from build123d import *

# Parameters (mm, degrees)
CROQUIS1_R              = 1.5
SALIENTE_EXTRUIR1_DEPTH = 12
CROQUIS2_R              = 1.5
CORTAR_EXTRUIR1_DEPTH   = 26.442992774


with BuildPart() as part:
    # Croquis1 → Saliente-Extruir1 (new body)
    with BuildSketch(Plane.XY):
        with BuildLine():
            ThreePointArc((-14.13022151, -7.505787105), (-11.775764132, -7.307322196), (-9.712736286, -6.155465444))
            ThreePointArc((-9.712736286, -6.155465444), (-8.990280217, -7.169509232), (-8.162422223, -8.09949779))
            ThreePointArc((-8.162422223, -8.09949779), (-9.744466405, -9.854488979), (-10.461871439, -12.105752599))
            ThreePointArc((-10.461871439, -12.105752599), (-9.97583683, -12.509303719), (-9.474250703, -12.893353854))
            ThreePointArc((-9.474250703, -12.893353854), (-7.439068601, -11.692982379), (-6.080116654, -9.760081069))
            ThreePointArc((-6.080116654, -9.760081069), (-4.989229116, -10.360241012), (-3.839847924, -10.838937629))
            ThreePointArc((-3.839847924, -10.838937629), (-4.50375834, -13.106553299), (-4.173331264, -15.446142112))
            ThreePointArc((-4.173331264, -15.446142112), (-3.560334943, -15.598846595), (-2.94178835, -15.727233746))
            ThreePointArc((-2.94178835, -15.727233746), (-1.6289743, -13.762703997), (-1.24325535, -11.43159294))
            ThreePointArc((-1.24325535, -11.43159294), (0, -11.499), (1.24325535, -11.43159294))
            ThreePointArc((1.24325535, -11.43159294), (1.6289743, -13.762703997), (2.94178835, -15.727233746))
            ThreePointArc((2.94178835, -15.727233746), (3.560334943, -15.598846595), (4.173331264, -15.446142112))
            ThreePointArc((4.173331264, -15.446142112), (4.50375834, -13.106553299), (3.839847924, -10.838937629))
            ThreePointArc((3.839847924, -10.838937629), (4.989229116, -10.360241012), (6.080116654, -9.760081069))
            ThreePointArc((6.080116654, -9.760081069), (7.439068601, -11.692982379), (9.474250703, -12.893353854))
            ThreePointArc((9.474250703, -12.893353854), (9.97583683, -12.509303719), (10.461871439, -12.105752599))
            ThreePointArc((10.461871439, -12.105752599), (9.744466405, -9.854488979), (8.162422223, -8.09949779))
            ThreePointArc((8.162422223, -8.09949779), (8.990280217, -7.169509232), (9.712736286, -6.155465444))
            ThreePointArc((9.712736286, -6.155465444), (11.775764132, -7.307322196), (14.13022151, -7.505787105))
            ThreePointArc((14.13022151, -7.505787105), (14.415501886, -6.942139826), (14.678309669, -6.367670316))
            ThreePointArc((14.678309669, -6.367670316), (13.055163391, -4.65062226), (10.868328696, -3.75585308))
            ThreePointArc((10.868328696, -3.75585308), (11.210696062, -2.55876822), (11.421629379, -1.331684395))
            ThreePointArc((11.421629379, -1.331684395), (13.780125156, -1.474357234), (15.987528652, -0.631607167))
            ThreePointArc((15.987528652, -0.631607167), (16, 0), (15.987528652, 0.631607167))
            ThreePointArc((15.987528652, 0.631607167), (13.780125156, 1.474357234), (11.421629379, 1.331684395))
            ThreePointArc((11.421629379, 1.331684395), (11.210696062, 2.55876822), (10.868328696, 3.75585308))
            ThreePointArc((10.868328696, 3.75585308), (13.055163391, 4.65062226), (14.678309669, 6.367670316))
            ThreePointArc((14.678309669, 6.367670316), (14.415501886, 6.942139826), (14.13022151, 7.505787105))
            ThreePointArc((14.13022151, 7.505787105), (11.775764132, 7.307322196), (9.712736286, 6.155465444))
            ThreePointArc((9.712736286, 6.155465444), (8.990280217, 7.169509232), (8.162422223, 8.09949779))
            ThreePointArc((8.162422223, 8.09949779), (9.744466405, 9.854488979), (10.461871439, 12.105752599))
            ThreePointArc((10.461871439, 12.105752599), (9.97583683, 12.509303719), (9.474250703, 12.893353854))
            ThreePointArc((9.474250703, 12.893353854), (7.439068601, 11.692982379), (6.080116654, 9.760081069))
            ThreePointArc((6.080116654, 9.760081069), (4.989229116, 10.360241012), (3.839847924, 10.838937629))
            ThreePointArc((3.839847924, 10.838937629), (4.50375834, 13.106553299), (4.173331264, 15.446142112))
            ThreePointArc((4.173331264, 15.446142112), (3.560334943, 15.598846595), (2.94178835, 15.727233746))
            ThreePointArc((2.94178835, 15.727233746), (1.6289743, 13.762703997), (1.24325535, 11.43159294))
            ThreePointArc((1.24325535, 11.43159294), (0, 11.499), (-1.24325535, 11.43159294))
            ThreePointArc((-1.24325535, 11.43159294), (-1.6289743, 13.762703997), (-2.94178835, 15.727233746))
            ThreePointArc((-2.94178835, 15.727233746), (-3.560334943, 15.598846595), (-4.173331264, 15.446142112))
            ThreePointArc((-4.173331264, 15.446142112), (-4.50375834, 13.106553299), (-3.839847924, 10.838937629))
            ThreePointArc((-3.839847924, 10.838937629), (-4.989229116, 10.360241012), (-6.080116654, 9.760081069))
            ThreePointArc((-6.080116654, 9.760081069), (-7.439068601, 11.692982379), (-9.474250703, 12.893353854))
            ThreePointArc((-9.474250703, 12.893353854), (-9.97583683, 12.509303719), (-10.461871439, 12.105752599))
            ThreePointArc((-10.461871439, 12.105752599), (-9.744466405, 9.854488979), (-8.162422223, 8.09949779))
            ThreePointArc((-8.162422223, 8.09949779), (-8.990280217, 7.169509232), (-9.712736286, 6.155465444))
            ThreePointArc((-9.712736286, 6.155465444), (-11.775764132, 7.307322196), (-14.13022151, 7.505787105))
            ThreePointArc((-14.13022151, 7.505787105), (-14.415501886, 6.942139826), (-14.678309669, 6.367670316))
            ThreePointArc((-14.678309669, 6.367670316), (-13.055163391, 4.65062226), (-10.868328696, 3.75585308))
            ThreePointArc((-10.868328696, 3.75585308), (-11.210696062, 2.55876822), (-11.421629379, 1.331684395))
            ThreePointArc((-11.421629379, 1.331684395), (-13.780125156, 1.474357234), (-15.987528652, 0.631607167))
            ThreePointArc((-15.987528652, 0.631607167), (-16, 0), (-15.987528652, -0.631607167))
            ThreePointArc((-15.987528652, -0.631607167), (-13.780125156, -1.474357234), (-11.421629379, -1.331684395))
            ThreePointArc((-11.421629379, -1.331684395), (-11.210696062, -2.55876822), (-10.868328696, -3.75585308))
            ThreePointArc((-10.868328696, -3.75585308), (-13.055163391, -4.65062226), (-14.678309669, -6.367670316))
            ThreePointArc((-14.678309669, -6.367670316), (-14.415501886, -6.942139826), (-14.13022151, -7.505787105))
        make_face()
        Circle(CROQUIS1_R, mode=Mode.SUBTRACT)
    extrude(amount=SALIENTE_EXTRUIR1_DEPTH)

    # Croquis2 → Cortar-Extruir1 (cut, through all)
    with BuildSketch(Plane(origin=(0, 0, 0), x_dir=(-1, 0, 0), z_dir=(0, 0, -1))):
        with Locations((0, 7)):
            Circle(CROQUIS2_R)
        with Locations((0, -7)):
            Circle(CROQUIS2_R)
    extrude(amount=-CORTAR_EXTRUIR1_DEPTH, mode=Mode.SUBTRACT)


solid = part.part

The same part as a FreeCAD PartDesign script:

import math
import FreeCAD as App
import Part
import Sketcher

V = App.Vector

doc = App.newDocument("Part")
body = doc.addObject("PartDesign::Body", "Body")

sketch1 = doc.addObject("Sketcher::SketchObject", "Sketch")
body.addObject(sketch1)
sketch1.AttachmentSupport = (doc.XY_Plane, [""])
sketch1.MapMode = "FlatFace"
sketch1.addGeometry([
    Part.ArcOfCircle(Part.Circle(V(-13.4, -2, 0), V(0, 0, 1), 5.6), math.radians(-97), math.radians(-49)),
    Part.ArcOfCircle(Part.Circle(V(0, 0, 0), V(0, 0, 1), 11.5), math.radians(-147.64), math.radians(-135.22)),
    Part.ArcOfCircle(Part.Circle(V(-4.9, -12.6, 0), V(0, 0, 1), 5.6), math.radians(126), math.radians(175)),
    Part.ArcOfCircle(Part.Circle(V(0, 0, 0), V(0, 0, 1), 16), math.radians(-130.83), math.radians(-126.31)),
    Part.ArcOfCircle(Part.Circle(V(-11.2, -7.6, 0), V(0, 0, 1), 5.6), math.radians(-72), math.radians(-23)),
    Part.ArcOfCircle(Part.Circle(V(0, 0, 0), V(0, 0, 1), 11.5), math.radians(-121.92), math.radians(-109.51)),
    Part.ArcOfCircle(Part.Circle(V(1.1, -13.5, 0), V(0, 0, 1), 5.6), math.radians(152), math.radians(200)),
    Part.ArcOfCircle(Part.Circle(V(0, 0, 0), V(0, 0, 1), 16), math.radians(-105.12), math.radians(-100.59)),
    Part.ArcOfCircle(Part.Circle(V(-6.8, -11.7, 0), V(0, 0, 1), 5.6), math.radians(-46), math.radians(3)),
    Part.ArcOfCircle(Part.Circle(V(0, 0, 0), V(0, 0, 1), 11.5), math.radians(-96.21), math.radians(-83.79)),
    Part.ArcOfCircle(Part.Circle(V(6.8, -11.7, 0), V(0, 0, 1), 5.6), math.radians(177), math.radians(226)),
    Part.ArcOfCircle(Part.Circle(V(0, 0, 0), V(0, 0, 1), 16), math.radians(-79.41), math.radians(-74.88)),
    Part.ArcOfCircle(Part.Circle(V(-1.1, -13.5, 0), V(0, 0, 1), 5.6), math.radians(-20), math.radians(28)),
    Part.ArcOfCircle(Part.Circle(V(0, 0, 0), V(0, 0, 1), 11.5), math.radians(-70.49), math.radians(-58.08)),
    Part.ArcOfCircle(Part.Circle(V(11.2, -7.6, 0), V(0, 0, 1), 5.6), math.radians(-157), math.radians(-108)),
    Part.ArcOfCircle(Part.Circle(V(0, 0, 0), V(0, 0, 1), 16), math.radians(-53.69), math.radians(-49.17)),
    Part.ArcOfCircle(Part.Circle(V(4.9, -12.6, 0), V(0, 0, 1), 5.6), math.radians(5), math.radians(54)),
    Part.ArcOfCircle(Part.Circle(V(0, 0, 0), V(0, 0, 1), 11.5), math.radians(-44.78), math.radians(-32.36)),
    Part.ArcOfCircle(Part.Circle(V(13.4, -2, 0), V(0, 0, 1), 5.6), math.radians(-131), math.radians(-83)),
    Part.ArcOfCircle(Part.Circle(V(0, 0, 0), V(0, 0, 1), 16), math.radians(-27.98), math.radians(-23.45)),
    Part.ArcOfCircle(Part.Circle(V(9.9, -9.3, 0), V(0, 0, 1), 5.6), math.radians(31), math.radians(80)),
    Part.ArcOfCircle(Part.Circle(V(0, 0, 0), V(0, 0, 1), 11.5), math.radians(-19.06), math.radians(-6.65)),
    Part.ArcOfCircle(Part.Circle(V(12.9, 4.1, 0), V(0, 0, 1), 5.6), math.radians(-106), math.radians(-57)),
    Part.ArcOfCircle(Part.Circle(V(0, 0, 0), V(0, 0, 1), 16), math.radians(-2.26), math.radians(2.26)),
    Part.ArcOfCircle(Part.Circle(V(12.9, -4.1, 0), V(0, 0, 1), 5.6), math.radians(57), math.radians(106)),
    Part.ArcOfCircle(Part.Circle(V(0, 0, 0), V(0, 0, 1), 11.5), math.radians(6.65), math.radians(19.06)),
    Part.ArcOfCircle(Part.Circle(V(9.9, 9.3, 0), V(0, 0, 1), 5.6), math.radians(-80), math.radians(-31)),
    Part.ArcOfCircle(Part.Circle(V(0, 0, 0), V(0, 0, 1), 16), math.radians(23.45), math.radians(27.98)),
    Part.ArcOfCircle(Part.Circle(V(13.4, 2, 0), V(0, 0, 1), 5.6), math.radians(83), math.radians(131)),
    Part.ArcOfCircle(Part.Circle(V(0, 0, 0), V(0, 0, 1), 11.5), math.radians(32.36), math.radians(44.78)),
    Part.ArcOfCircle(Part.Circle(V(4.9, 12.6, 0), V(0, 0, 1), 5.6), math.radians(-54), math.radians(-5)),
    Part.ArcOfCircle(Part.Circle(V(0, 0, 0), V(0, 0, 1), 16), math.radians(49.17), math.radians(53.69)),
    Part.ArcOfCircle(Part.Circle(V(11.2, 7.6, 0), V(0, 0, 1), 5.6), math.radians(108), math.radians(157)),
    Part.ArcOfCircle(Part.Circle(V(0, 0, 0), V(0, 0, 1), 11.5), math.radians(58.08), math.radians(70.49)),
    Part.ArcOfCircle(Part.Circle(V(-1.1, 13.5, 0), V(0, 0, 1), 5.6), math.radians(-28), math.radians(20)),
    Part.ArcOfCircle(Part.Circle(V(0, 0, 0), V(0, 0, 1), 16), math.radians(74.88), math.radians(79.41)),
    Part.ArcOfCircle(Part.Circle(V(6.8, 11.7, 0), V(0, 0, 1), 5.6), math.radians(134), math.radians(183)),
    Part.ArcOfCircle(Part.Circle(V(0, 0, 0), V(0, 0, 1), 11.5), math.radians(83.79), math.radians(96.21)),
    Part.ArcOfCircle(Part.Circle(V(-6.8, 11.7, 0), V(0, 0, 1), 5.6), math.radians(-3), math.radians(46)),
    Part.ArcOfCircle(Part.Circle(V(0, 0, 0), V(0, 0, 1), 16), math.radians(100.59), math.radians(105.12)),
    Part.ArcOfCircle(Part.Circle(V(1.1, 13.5, 0), V(0, 0, 1), 5.6), math.radians(160), math.radians(208)),
    Part.ArcOfCircle(Part.Circle(V(0, 0, 0), V(0, 0, 1), 11.5), math.radians(109.51), math.radians(121.92)),
    Part.ArcOfCircle(Part.Circle(V(-11.2, 7.6, 0), V(0, 0, 1), 5.6), math.radians(23), math.radians(72)),
    Part.ArcOfCircle(Part.Circle(V(0, 0, 0), V(0, 0, 1), 16), math.radians(126.31), math.radians(130.83)),
    Part.ArcOfCircle(Part.Circle(V(-4.9, 12.6, 0), V(0, 0, 1), 5.6), math.radians(-175), math.radians(-126)),
    Part.ArcOfCircle(Part.Circle(V(0, 0, 0), V(0, 0, 1), 11.5), math.radians(135.22), math.radians(147.64)),
    Part.ArcOfCircle(Part.Circle(V(-13.4, 2, 0), V(0, 0, 1), 5.6), math.radians(49), math.radians(97)),
    Part.ArcOfCircle(Part.Circle(V(0, 0, 0), V(0, 0, 1), 16), math.radians(152.02), math.radians(156.55)),
    Part.ArcOfCircle(Part.Circle(V(-9.9, 9.3, 0), V(0, 0, 1), 5.6), math.radians(-149), math.radians(-100)),
    Part.ArcOfCircle(Part.Circle(V(0, 0, 0), V(0, 0, 1), 11.5), math.radians(160.94), math.radians(173.35)),
    Part.ArcOfCircle(Part.Circle(V(-12.9, -4.1, 0), V(0, 0, 1), 5.6), math.radians(74), math.radians(123)),
    Part.ArcOfCircle(Part.Circle(V(0, 0, 0), V(0, 0, 1), 16), math.radians(177.74), math.radians(182.26)),
    Part.ArcOfCircle(Part.Circle(V(-12.9, 4.1, 0), V(0, 0, 1), 5.6), math.radians(-123), math.radians(-74)),
    Part.ArcOfCircle(Part.Circle(V(0, 0, 0), V(0, 0, 1), 11.5), math.radians(-173.35), math.radians(-160.94)),
    Part.ArcOfCircle(Part.Circle(V(-9.9, -9.3, 0), V(0, 0, 1), 5.6), math.radians(100), math.radians(149)),
    Part.ArcOfCircle(Part.Circle(V(0, 0, 0), V(0, 0, 1), 16), math.radians(-156.55), math.radians(-152.02)),
    Part.Circle(V(0, 0, 0), V(0, 0, 1), 1.5),
], False)
sketch1.addConstraint([
    Sketcher.Constraint("Coincident", 0, 2, 1, 1),
    Sketcher.Constraint("Coincident", 1, 2, 2, 1),
    Sketcher.Constraint("Coincident", 2, 2, 3, 1),
    Sketcher.Constraint("Coincident", 3, 2, 4, 1),
    Sketcher.Constraint("Coincident", 4, 2, 5, 1),
    Sketcher.Constraint("Coincident", 5, 2, 6, 1),
    Sketcher.Constraint("Coincident", 6, 2, 7, 1),
    Sketcher.Constraint("Coincident", 7, 2, 8, 1),
    Sketcher.Constraint("Coincident", 8, 2, 9, 1),
    Sketcher.Constraint("Coincident", 9, 2, 10, 1),
    Sketcher.Constraint("Coincident", 10, 2, 11, 1),
    Sketcher.Constraint("Coincident", 11, 2, 12, 1),
    Sketcher.Constraint("Coincident", 12, 2, 13, 1),
    Sketcher.Constraint("Coincident", 13, 2, 14, 1),
    Sketcher.Constraint("Coincident", 14, 2, 15, 1),
    Sketcher.Constraint("Coincident", 15, 2, 16, 1),
    Sketcher.Constraint("Coincident", 16, 2, 17, 1),
    Sketcher.Constraint("Coincident", 17, 2, 18, 1),
    Sketcher.Constraint("Coincident", 18, 2, 19, 1),
    Sketcher.Constraint("Coincident", 19, 2, 20, 1),
    Sketcher.Constraint("Coincident", 20, 2, 21, 1),
    Sketcher.Constraint("Coincident", 21, 2, 22, 1),
    Sketcher.Constraint("Coincident", 22, 2, 23, 1),
    Sketcher.Constraint("Coincident", 23, 2, 24, 1),
    Sketcher.Constraint("Coincident", 24, 2, 25, 1),
    Sketcher.Constraint("Coincident", 25, 2, 26, 1),
    Sketcher.Constraint("Coincident", 26, 2, 27, 1),
    Sketcher.Constraint("Coincident", 27, 2, 28, 1),
    Sketcher.Constraint("Coincident", 28, 2, 29, 1),
    Sketcher.Constraint("Coincident", 29, 2, 30, 1),
    Sketcher.Constraint("Coincident", 30, 2, 31, 1),
    Sketcher.Constraint("Coincident", 31, 2, 32, 1),
    Sketcher.Constraint("Coincident", 32, 2, 33, 1),
    Sketcher.Constraint("Coincident", 33, 2, 34, 1),
    Sketcher.Constraint("Coincident", 34, 2, 35, 1),
    Sketcher.Constraint("Coincident", 35, 2, 36, 1),
    Sketcher.Constraint("Coincident", 36, 2, 37, 1),
    Sketcher.Constraint("Coincident", 37, 2, 38, 1),
    Sketcher.Constraint("Coincident", 38, 2, 39, 1),
    Sketcher.Constraint("Coincident", 39, 2, 40, 1),
    Sketcher.Constraint("Coincident", 40, 2, 41, 1),
    Sketcher.Constraint("Coincident", 41, 2, 42, 1),
    Sketcher.Constraint("Coincident", 42, 2, 43, 1),
    Sketcher.Constraint("Coincident", 43, 2, 44, 1),
    Sketcher.Constraint("Coincident", 44, 2, 45, 1),
    Sketcher.Constraint("Coincident", 45, 2, 46, 1),
    Sketcher.Constraint("Coincident", 46, 2, 47, 1),
    Sketcher.Constraint("Coincident", 47, 2, 48, 1),
    Sketcher.Constraint("Coincident", 48, 2, 49, 1),
    Sketcher.Constraint("Coincident", 49, 2, 50, 1),
    Sketcher.Constraint("Coincident", 50, 2, 51, 1),
    Sketcher.Constraint("Coincident", 51, 2, 52, 1),
    Sketcher.Constraint("Coincident", 52, 2, 53, 1),
    Sketcher.Constraint("Coincident", 53, 2, 54, 1),
    Sketcher.Constraint("Coincident", 54, 2, 55, 1),
    Sketcher.Constraint("Coincident", 55, 2, 0, 1),
    Sketcher.Constraint("Coincident", 1, 3, -1, 1),
    Sketcher.Constraint("Coincident", 3, 3, -1, 1),
    Sketcher.Constraint("Coincident", 5, 3, -1, 1),
    Sketcher.Constraint("Coincident", 7, 3, -1, 1),
    Sketcher.Constraint("Coincident", 9, 3, -1, 1),
    Sketcher.Constraint("Coincident", 11, 3, -1, 1),
    Sketcher.Constraint("Coincident", 13, 3, -1, 1),
    Sketcher.Constraint("Coincident", 15, 3, -1, 1),
    Sketcher.Constraint("Coincident", 17, 3, -1, 1),
    Sketcher.Constraint("Coincident", 19, 3, -1, 1),
    Sketcher.Constraint("Coincident", 21, 3, -1, 1),
    Sketcher.Constraint("Coincident", 23, 3, -1, 1),
    Sketcher.Constraint("Coincident", 25, 3, -1, 1),
    Sketcher.Constraint("Coincident", 27, 3, -1, 1),
    Sketcher.Constraint("Coincident", 29, 3, -1, 1),
    Sketcher.Constraint("Coincident", 31, 3, -1, 1),
    Sketcher.Constraint("Coincident", 33, 3, -1, 1),
    Sketcher.Constraint("Coincident", 35, 3, -1, 1),
    Sketcher.Constraint("Coincident", 37, 3, -1, 1),
    Sketcher.Constraint("Coincident", 39, 3, -1, 1),
    Sketcher.Constraint("Coincident", 41, 3, -1, 1),
    Sketcher.Constraint("Coincident", 43, 3, -1, 1),
    Sketcher.Constraint("Coincident", 45, 3, -1, 1),
    Sketcher.Constraint("Coincident", 47, 3, -1, 1),
    Sketcher.Constraint("Coincident", 49, 3, -1, 1),
    Sketcher.Constraint("Coincident", 51, 3, -1, 1),
    Sketcher.Constraint("Coincident", 53, 3, -1, 1),
    Sketcher.Constraint("Coincident", 55, 3, -1, 1),
    Sketcher.Constraint("Coincident", 56, 3, -1, 1),
    Sketcher.Constraint("Equal", 0, 2),
    Sketcher.Constraint("Equal", 2, 4),
    Sketcher.Constraint("Equal", 1, 5),
    Sketcher.Constraint("Equal", 4, 6),
    Sketcher.Constraint("Equal", 3, 7),
    Sketcher.Constraint("Equal", 6, 8),
    Sketcher.Constraint("Equal", 5, 9),
    Sketcher.Constraint("Equal", 8, 10),
    Sketcher.Constraint("Equal", 7, 11),
    Sketcher.Constraint("Equal", 10, 12),
    Sketcher.Constraint("Equal", 9, 13),
    Sketcher.Constraint("Equal", 12, 14),
    Sketcher.Constraint("Equal", 11, 15),
    Sketcher.Constraint("Equal", 14, 16),
    Sketcher.Constraint("Equal", 13, 17),
    Sketcher.Constraint("Equal", 16, 18),
    Sketcher.Constraint("Equal", 15, 19),
    Sketcher.Constraint("Equal", 18, 20),
    Sketcher.Constraint("Equal", 17, 21),
    Sketcher.Constraint("Equal", 20, 22),
    Sketcher.Constraint("Equal", 19, 23),
    Sketcher.Constraint("Equal", 22, 24),
    Sketcher.Constraint("Equal", 21, 25),
    Sketcher.Constraint("Equal", 24, 26),
    Sketcher.Constraint("Equal", 23, 27),
    Sketcher.Constraint("Equal", 26, 28),
    Sketcher.Constraint("Equal", 25, 29),
    Sketcher.Constraint("Equal", 28, 30),
    Sketcher.Constraint("Equal", 27, 31),
    Sketcher.Constraint("Equal", 30, 32),
    Sketcher.Constraint("Equal", 29, 33),
    Sketcher.Constraint("Equal", 32, 34),
    Sketcher.Constraint("Equal", 31, 35),
    Sketcher.Constraint("Equal", 34, 36),
    Sketcher.Constraint("Equal", 33, 37),
    Sketcher.Constraint("Equal", 36, 38),
    Sketcher.Constraint("Equal", 35, 39),
    Sketcher.Constraint("Equal", 38, 40),
    Sketcher.Constraint("Equal", 37, 41),
    Sketcher.Constraint("Equal", 40, 42),
    Sketcher.Constraint("Equal", 39, 43),
    Sketcher.Constraint("Equal", 42, 44),
    Sketcher.Constraint("Equal", 41, 45),
    Sketcher.Constraint("Equal", 44, 46),
    Sketcher.Constraint("Equal", 43, 47),
    Sketcher.Constraint("Equal", 46, 48),
    Sketcher.Constraint("Equal", 45, 49),
    Sketcher.Constraint("Equal", 48, 50),
    Sketcher.Constraint("Equal", 47, 51),
    Sketcher.Constraint("Equal", 50, 52),
    Sketcher.Constraint("Equal", 49, 53),
    Sketcher.Constraint("Equal", 52, 54),
    Sketcher.Constraint("Equal", 51, 55),
    Sketcher.Constraint("Symmetric", 0, 3, 28, 3, -1, 1),
    Sketcher.Constraint("Symmetric", 2, 3, 30, 3, -1, 1),
    Sketcher.Constraint("Symmetric", 4, 3, 32, 3, -1, 1),
    Sketcher.Constraint("Symmetric", 6, 3, 34, 3, -1, 1),
    Sketcher.Constraint("Symmetric", 8, 3, 36, 3, -1, 1),
    Sketcher.Constraint("Symmetric", 10, 3, 38, 3, -1, 1),
    Sketcher.Constraint("Symmetric", 12, 3, 40, 3, -1, 1),
    Sketcher.Constraint("Symmetric", 14, 3, 42, 3, -1, 1),
    Sketcher.Constraint("Symmetric", 16, 3, 44, 3, -1, 1),
    Sketcher.Constraint("Symmetric", 18, 3, 46, 3, -1, 1),
    Sketcher.Constraint("Symmetric", 20, 3, 48, 3, -1, 1),
    Sketcher.Constraint("Symmetric", 22, 3, 50, 3, -1, 1),
    Sketcher.Constraint("Symmetric", 24, 3, 52, 3, -1, 1),
    Sketcher.Constraint("Symmetric", 26, 3, 54, 3, -1, 1),
    Sketcher.Constraint("Symmetric", 8, 3, 10, 3, -2),
    Sketcher.Constraint("Symmetric", 6, 3, 12, 3, -2),
    Sketcher.Constraint("Symmetric", 4, 3, 14, 3, -2),
    Sketcher.Constraint("Symmetric", 2, 3, 16, 3, -2),
    Sketcher.Constraint("Symmetric", 0, 3, 18, 3, -2),
    Sketcher.Constraint("Symmetric", 26, 3, 48, 3, -2),
    Sketcher.Constraint("Symmetric", 24, 3, 50, 3, -2),
    Sketcher.Constraint("Diameter", 56, 3.0),
    Sketcher.Constraint("Radius", 3, 16.0),
    Sketcher.Constraint("Radius", 0, 5.6),
    Sketcher.Constraint("Radius", 1, 11.499),
    Sketcher.Constraint("DistanceX", 0, 3, -1, 1, 13.412781),
    Sketcher.Constraint("DistanceX", 2, 3, -1, 1, 4.88762),
    Sketcher.Constraint("DistanceY", 4, 3, -1, 1, 7.57822),
    Sketcher.Constraint("DistanceX", -1, 1, 6, 3, 1.081629),
    Sketcher.Constraint("DistanceY", 6, 3, -1, 1, 13.51084),
    Sketcher.Constraint("DistanceX", 8, 3, -1, 1, 6.836648),
    Sketcher.Constraint("DistanceX", -1, 1, 22, 3, 12.93141),
    Sketcher.Constraint("DistanceX", 2, 2, -1, 1, 10.461871),
    Sketcher.Constraint("DistanceX", 3, 2, -1, 1, 9.474251),
    Sketcher.Constraint("DistanceX", 7, 2, -1, 1, 2.941788),
    Sketcher.Constraint("DistanceX", -1, 1, 18, 2, 14.130222),
    Sketcher.Constraint("DistanceX", -1, 1, 19, 2, 14.67831),
    Sketcher.Constraint("DistanceX", -1, 1, 20, 2, 10.868329),
    Sketcher.Constraint("DistanceX", -1, 1, 21, 2, 11.421629),
])
pad1 = doc.addObject("PartDesign::Pad", "Pad")
body.addObject(pad1)
pad1.Profile = sketch1
pad1.Length = 12

sketch2 = doc.addObject("Sketcher::SketchObject", "Sketch001")
body.addObject(sketch2)
sketch2.AttachmentSupport = (doc.XY_Plane, [""])
sketch2.MapMode = "FlatFace"
sketch2.addGeometry([
    Part.Circle(V(0, 7, 0), V(0, 0, 1), 1.5),
    Part.Circle(V(0, -7, 0), V(0, 0, 1), 1.5),
], False)
sketch2.addConstraint([
    Sketcher.Constraint("Equal", 0, 1),
    Sketcher.Constraint("Symmetric", 0, 3, 1, 3, -1, 1),
    Sketcher.Constraint("PointOnObject", 0, 3, -2),
    Sketcher.Constraint("Diameter", 0, 3.0),
    Sketcher.Constraint("DistanceY", -1, 1, 0, 3, 7.0),
])
pocket1 = doc.addObject("PartDesign::Pocket", "Pocket")
body.addObject(pocket1)
pocket1.Profile = sketch2
pocket1.Type = "ThroughAll"
pocket1.Reversed = True

doc.recompute()
